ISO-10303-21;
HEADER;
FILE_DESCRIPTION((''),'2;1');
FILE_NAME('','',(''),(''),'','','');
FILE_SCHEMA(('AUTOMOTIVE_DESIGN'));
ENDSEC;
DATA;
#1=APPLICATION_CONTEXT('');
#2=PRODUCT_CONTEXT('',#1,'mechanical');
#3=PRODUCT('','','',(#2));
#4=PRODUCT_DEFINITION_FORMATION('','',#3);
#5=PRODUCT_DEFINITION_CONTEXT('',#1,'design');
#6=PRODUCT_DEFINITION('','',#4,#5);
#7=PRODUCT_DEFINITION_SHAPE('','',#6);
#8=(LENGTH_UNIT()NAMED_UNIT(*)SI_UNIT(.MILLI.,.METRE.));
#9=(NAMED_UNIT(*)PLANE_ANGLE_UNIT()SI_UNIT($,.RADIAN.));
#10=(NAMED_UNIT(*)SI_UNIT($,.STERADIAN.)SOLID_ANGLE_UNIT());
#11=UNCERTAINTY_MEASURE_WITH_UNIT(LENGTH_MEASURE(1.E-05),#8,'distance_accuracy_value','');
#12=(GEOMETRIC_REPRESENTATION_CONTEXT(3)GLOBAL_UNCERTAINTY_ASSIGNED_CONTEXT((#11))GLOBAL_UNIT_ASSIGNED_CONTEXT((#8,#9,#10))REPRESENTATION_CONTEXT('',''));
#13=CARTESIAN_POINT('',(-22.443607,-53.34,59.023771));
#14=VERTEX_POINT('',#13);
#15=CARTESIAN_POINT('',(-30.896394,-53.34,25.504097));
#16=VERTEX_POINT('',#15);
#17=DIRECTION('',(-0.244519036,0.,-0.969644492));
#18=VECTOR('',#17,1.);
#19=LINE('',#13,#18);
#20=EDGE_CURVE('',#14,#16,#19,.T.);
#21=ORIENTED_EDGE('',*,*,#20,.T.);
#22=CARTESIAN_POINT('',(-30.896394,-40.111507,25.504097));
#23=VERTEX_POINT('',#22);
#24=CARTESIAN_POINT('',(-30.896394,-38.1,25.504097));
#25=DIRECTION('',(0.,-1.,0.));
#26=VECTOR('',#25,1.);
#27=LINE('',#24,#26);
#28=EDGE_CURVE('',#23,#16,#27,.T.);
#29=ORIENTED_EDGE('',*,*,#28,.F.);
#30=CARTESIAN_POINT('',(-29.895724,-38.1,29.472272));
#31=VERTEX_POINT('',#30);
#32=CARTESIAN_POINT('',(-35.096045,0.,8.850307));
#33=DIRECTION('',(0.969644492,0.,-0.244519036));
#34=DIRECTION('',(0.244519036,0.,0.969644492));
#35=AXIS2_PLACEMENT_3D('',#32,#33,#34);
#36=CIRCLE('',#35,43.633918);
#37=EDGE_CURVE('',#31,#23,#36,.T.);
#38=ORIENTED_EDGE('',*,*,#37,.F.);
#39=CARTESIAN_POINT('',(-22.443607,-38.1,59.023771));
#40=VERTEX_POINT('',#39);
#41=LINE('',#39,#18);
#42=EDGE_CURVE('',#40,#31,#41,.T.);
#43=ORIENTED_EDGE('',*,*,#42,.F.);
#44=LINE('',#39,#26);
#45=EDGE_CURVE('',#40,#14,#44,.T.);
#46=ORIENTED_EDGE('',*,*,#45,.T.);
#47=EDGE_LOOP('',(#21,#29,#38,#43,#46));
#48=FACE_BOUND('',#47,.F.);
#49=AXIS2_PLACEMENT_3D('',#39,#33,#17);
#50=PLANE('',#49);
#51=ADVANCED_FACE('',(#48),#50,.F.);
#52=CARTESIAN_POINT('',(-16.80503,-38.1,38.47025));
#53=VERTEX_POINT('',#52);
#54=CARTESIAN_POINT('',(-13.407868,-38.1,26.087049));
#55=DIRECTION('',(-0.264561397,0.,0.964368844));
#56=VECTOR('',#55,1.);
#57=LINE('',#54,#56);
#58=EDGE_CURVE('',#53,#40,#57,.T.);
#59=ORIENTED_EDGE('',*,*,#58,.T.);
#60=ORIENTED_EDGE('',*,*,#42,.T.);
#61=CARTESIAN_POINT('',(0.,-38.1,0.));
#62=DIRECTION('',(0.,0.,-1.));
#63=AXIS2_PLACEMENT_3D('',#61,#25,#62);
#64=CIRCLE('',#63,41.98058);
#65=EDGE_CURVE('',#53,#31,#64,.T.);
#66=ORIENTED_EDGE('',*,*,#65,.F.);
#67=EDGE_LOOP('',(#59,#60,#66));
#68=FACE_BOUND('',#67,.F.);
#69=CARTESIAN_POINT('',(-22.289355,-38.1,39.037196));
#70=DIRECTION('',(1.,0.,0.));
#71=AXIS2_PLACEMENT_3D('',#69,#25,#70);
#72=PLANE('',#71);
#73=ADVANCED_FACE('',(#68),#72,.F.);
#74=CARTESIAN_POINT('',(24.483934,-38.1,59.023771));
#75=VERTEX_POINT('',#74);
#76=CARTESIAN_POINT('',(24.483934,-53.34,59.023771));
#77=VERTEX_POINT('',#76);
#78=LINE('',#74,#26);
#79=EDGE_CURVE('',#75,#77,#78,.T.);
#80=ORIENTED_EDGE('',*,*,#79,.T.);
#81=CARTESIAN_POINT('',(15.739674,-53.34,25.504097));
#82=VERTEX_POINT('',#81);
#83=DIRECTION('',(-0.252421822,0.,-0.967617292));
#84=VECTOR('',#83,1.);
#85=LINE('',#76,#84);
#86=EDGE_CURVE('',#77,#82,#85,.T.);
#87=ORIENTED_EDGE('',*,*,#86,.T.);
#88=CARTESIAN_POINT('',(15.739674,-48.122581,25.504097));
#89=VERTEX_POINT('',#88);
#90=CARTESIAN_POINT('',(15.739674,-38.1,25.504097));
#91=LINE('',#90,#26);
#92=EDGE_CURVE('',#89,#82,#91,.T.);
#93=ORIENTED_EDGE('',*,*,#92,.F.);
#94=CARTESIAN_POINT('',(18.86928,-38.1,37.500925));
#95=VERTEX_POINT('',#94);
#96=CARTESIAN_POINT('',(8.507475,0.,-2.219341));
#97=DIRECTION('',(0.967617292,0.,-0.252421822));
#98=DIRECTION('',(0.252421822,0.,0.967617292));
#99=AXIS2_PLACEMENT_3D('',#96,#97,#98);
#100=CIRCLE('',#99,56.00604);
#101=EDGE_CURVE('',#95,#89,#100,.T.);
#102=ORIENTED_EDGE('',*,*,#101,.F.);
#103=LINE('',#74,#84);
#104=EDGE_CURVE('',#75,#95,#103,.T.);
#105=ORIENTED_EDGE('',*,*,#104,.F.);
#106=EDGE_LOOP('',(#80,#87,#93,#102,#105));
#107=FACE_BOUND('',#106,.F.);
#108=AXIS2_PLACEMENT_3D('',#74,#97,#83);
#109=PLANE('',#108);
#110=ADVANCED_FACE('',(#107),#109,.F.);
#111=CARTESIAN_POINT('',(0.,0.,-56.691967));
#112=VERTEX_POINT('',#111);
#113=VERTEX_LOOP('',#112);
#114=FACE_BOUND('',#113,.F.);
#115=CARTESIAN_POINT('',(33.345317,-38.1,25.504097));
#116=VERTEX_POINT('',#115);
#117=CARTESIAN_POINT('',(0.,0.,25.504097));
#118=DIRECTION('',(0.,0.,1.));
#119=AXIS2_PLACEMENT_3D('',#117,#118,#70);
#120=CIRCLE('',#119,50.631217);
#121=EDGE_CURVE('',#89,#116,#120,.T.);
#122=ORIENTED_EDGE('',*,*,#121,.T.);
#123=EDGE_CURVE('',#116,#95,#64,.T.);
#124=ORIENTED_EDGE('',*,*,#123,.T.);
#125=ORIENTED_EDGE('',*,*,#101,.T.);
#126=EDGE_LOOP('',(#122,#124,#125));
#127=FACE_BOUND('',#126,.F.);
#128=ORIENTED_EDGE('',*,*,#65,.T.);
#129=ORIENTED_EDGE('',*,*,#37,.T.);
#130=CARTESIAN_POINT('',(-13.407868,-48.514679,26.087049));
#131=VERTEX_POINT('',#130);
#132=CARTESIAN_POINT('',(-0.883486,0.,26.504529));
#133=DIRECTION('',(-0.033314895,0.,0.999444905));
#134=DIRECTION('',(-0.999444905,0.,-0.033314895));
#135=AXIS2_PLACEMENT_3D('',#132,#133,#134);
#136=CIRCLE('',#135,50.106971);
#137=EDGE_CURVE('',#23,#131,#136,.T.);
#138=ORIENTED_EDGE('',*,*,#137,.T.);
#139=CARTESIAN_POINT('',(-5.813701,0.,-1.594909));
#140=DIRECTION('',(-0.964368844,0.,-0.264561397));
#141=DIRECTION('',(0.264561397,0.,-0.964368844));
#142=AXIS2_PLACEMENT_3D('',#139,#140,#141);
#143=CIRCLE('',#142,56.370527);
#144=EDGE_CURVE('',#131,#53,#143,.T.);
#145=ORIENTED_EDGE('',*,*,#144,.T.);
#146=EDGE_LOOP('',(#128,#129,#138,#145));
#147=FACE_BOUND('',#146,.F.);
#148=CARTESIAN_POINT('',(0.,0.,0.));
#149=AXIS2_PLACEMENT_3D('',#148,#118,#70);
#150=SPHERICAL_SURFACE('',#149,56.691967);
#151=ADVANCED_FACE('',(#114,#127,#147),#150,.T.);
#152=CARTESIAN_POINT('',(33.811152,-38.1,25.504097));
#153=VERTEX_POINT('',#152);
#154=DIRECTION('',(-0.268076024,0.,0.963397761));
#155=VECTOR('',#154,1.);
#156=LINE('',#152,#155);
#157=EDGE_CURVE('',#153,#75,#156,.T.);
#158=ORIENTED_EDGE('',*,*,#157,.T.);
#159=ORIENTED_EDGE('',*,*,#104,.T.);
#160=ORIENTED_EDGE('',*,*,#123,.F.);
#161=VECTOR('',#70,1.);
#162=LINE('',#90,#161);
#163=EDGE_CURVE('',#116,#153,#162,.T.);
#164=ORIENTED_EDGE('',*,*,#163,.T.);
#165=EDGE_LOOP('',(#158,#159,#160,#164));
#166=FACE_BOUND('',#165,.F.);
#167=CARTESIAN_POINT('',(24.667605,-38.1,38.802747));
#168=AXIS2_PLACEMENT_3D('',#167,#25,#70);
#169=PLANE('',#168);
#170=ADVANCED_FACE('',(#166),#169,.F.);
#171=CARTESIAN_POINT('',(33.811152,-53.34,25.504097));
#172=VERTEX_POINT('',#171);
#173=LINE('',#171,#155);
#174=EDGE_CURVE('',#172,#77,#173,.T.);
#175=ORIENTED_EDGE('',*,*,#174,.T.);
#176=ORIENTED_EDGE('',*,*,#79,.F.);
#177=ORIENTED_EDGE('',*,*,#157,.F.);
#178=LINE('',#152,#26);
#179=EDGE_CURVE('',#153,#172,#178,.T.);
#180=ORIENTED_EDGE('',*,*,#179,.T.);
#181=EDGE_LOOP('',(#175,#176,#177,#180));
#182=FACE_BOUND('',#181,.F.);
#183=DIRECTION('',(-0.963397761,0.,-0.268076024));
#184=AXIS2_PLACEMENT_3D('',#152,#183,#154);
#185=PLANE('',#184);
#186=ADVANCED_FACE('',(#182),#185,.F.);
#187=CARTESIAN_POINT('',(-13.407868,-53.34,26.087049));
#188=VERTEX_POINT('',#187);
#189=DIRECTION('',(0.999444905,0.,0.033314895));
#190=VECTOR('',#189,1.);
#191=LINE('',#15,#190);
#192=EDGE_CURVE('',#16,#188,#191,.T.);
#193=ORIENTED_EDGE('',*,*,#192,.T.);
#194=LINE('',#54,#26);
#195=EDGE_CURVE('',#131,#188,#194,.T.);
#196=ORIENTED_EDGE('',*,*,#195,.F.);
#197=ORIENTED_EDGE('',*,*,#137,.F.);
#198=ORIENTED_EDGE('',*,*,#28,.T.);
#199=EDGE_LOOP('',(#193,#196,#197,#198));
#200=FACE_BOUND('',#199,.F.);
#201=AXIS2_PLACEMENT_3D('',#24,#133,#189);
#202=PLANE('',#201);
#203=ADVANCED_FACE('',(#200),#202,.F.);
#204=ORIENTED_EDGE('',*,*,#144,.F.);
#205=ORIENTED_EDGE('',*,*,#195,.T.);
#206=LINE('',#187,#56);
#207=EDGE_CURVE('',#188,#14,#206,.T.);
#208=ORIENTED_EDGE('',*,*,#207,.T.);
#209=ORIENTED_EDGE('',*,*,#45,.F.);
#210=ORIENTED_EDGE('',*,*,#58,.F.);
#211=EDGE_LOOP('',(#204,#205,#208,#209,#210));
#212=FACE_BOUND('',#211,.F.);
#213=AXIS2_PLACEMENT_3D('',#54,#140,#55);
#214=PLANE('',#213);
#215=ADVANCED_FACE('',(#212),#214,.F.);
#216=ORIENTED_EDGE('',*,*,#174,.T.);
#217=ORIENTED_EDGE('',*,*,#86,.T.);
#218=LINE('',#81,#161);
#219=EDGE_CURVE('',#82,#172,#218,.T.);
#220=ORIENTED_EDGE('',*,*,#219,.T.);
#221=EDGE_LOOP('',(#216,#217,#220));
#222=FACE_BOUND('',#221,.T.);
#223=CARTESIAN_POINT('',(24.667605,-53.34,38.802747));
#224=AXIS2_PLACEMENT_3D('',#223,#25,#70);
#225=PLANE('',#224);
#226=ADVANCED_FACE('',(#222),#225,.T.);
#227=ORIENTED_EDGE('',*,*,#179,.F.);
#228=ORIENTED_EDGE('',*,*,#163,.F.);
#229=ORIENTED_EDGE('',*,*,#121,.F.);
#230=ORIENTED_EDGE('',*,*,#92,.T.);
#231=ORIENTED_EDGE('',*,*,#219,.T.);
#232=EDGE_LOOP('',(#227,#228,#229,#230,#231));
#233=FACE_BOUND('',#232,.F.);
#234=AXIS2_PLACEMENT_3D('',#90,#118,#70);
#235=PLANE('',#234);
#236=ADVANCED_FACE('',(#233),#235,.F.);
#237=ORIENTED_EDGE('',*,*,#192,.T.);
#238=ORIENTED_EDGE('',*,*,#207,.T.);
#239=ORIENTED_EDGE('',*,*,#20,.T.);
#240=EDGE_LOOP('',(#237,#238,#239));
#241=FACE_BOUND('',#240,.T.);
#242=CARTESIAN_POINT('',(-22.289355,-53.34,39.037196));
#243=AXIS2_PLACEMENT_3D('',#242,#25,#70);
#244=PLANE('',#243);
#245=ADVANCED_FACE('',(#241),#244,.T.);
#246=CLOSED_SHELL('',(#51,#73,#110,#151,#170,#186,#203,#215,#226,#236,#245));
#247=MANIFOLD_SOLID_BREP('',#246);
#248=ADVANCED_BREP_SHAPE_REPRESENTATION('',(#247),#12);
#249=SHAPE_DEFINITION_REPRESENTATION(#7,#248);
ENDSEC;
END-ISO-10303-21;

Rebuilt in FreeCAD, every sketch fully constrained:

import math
import FreeCAD as App
import Part
import Sketcher

V = App.Vector
Q = App.Units.Quantity

doc = App.newDocument("Part")
body = doc.addObject("PartDesign::Body", "Body")

# Sketch on XZ plane
sketch1 = body.newObject("Sketcher::SketchObject", "Sketch")
sketch1.AttachmentSupport = (doc.getObject("XZ_Plane"), [""])
sketch1.MapMode = "FlatFace"
sketch1.addGeometry([
    Part.LineSegment(V(0, 57, 0), V(0, -57, 0)),
    Part.ArcOfCircle(Part.Circle(V(0, 0, 0), V(0, 0, 1), 57), math.radians(-90), math.radians(90)),
], False)
sketch1.addConstraint([
    Sketcher.Constraint("Coincident", 0, 1, 1, 2),
    Sketcher.Constraint("Coincident", 1, 1, 0, 2),
    Sketcher.Constraint("Vertical", 0),
    Sketcher.Constraint("Coincident", 1, 3, -1, 1),
    Sketcher.Constraint("PointOnObject", 0, 1, -2),
    Sketcher.Constraint("Radius", 1, 56.691967),
])
revolution = body.newObject("PartDesign::Revolution", "Revolution")
revolution.Profile = sketch1
revolution.ReferenceAxis = (sketch1, ["V_Axis"])
revolution.Angle = 360

# Sketch on XZ plane
sketch2 = body.newObject("Sketcher::SketchObject", "Sketch001")
sketch2.AttachmentSupport = (doc.getObject("XZ_Plane"), [""])
sketch2.MapMode = "FlatFace"
sketch2.AttachmentOffset = App.Placement(V(0, 0, 1.5 * 25.4), App.Rotation())
sketch2.addGeometry([
    Part.LineSegment(V(-22, 59, 0), V(-31, 26, 0)),  # 0
    Part.LineSegment(V(-31, 26, 0), V(-13, 26, 0)),  # 1
    Part.LineSegment(V(-13, 26, 0), V(-22, 59, 0)),  # 2
    Part.LineSegment(V(24, 59, 0), V(16, 26, 0)),  # 3
    Part.LineSegment(V(16, 26, 0), V(34, 26, 0)),  # 4
    Part.LineSegment(V(34, 26, 0), V(24, 59, 0)),  # 5
], False)
sketch2.addConstraint([
    Sketcher.Constraint("Coincident", 0, 2, 1, 1),
    Sketcher.Constraint("Coincident", 1, 2, 2, 1),
    Sketcher.Constraint("Coincident", 2, 2, 0, 1),
    Sketcher.Constraint("Coincident", 3, 2, 4, 1),
    Sketcher.Constraint("Coincident", 4, 2, 5, 1),
    Sketcher.Constraint("Coincident", 5, 2, 3, 1),
    Sketcher.Constraint("Horizontal", 4),
    Sketcher.Constraint("Horizontal", 0, 2, 3, 2),
    Sketcher.Constraint("Horizontal", 2, 2, 5, 2),
    Sketcher.Constraint("DistanceX", 1, 2, 5, 2, 37.891802),
    Sketcher.Constraint("Distance", 1, 17.498239),
    Sketcher.Constraint("Distance", 3, 34.641458),
    Sketcher.Constraint("DistanceX", 4, 1, 4, 2, 18.071478),
    Sketcher.Constraint("DistanceY", -1, 1, 1, 2, 26.087049),
    Sketcher.Constraint("DistanceY", -1, 1, 2, 2, 59.023771),
    Sketcher.Constraint("DistanceY", 0, 2, 1, 2, 0.582952),
    Sketcher.Constraint("DistanceX", 2, 2, 1, 2, 9.035739),
    Sketcher.Constraint("DistanceX", 0, 2, -1, 1, 30.896394),
])
pad1 = body.newObject("PartDesign::Pad", "Pad")
pad1.Profile = sketch2
pad1.Length = Q("0.6 in")

doc.recompute()
